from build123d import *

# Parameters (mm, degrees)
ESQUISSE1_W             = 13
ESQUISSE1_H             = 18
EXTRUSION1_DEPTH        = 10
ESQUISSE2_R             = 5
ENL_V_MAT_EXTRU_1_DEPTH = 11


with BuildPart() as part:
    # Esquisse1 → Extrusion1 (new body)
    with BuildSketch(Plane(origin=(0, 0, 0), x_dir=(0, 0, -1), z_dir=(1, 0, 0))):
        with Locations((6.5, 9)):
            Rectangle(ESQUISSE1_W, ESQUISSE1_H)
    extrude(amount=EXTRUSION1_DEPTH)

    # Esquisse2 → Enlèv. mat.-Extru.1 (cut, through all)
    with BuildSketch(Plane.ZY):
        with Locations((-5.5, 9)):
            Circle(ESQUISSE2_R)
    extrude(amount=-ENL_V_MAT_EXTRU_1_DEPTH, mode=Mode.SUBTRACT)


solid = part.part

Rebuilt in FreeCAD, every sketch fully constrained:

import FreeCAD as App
import Part
import Sketcher


def add_polygon(sketch, points):
    """Adds a closed chain of lines whose ends are joined by coincident constraints."""
    first, n = sketch.GeometryCount, len(points)
    for a, b in zip(points, points[1:] + points[:1]):
        sketch.addGeometry(Part.LineSegment(App.Vector(*a, 0), App.Vector(*b, 0)), False)
    for i in range(n):
        sketch.addConstraint(Sketcher.Constraint("Coincident", first + i, 2, first + (i + 1) % n, 1))

doc = App.newDocument("Part")
body = doc.addObject("PartDesign::Body", "Body")

# Sketch on YZ plane
sketch1 = body.newObject("Sketcher::SketchObject", "Sketch")
sketch1.AttachmentSupport = (doc.getObject("YZ_Plane"), [""])
sketch1.MapMode = "FlatFace"
add_polygon(sketch1, [(18, 0), (0, 0), (0, -13), (18, -13)])  # lines 0-3
sketch1.addConstraint([
    Sketcher.Constraint("Horizontal", 0),
    Sketcher.Constraint("Vertical", 1),
    Sketcher.Constraint("Horizontal", 2),
    Sketcher.Constraint("Vertical", 3),
    Sketcher.Constraint("Coincident", 0, 2, -1, 1),
    Sketcher.Constraint("DistanceX", 0, 2, 0, 1, 18.0),
    Sketcher.Constraint("DistanceY", 1, 2, 1, 1, 13.0),
])
pad1 = body.newObject("PartDesign::Pad", "Pad")
pad1.Profile = sketch1
pad1.Length = 10

# Sketch on YZ plane
sketch2 = body.newObject("Sketcher::SketchObject", "Sketch001")
sketch2.AttachmentSupport = (doc.getObject("YZ_Plane"), [""])
sketch2.MapMode = "FlatFace"
sketch2.addGeometry(Part.Circle(App.Vector(9, -6, 0), App.Vector(0, 0, 1), 5), False)
sketch2.addConstraint([
    Sketcher.Constraint("Diameter", 0, 10.0),
    Sketcher.Constraint("DistanceX", -1, 1, 0, 3, 9.0),
    Sketcher.Constraint("DistanceY", 0, 3, -1, 1, 5.5),
])
pocket1 = body.newObject("PartDesign::Pocket", "Pocket")
pocket1.Profile = sketch2
pocket1.Type = "ThroughAll"
pocket1.Reversed = True

doc.recompute()
